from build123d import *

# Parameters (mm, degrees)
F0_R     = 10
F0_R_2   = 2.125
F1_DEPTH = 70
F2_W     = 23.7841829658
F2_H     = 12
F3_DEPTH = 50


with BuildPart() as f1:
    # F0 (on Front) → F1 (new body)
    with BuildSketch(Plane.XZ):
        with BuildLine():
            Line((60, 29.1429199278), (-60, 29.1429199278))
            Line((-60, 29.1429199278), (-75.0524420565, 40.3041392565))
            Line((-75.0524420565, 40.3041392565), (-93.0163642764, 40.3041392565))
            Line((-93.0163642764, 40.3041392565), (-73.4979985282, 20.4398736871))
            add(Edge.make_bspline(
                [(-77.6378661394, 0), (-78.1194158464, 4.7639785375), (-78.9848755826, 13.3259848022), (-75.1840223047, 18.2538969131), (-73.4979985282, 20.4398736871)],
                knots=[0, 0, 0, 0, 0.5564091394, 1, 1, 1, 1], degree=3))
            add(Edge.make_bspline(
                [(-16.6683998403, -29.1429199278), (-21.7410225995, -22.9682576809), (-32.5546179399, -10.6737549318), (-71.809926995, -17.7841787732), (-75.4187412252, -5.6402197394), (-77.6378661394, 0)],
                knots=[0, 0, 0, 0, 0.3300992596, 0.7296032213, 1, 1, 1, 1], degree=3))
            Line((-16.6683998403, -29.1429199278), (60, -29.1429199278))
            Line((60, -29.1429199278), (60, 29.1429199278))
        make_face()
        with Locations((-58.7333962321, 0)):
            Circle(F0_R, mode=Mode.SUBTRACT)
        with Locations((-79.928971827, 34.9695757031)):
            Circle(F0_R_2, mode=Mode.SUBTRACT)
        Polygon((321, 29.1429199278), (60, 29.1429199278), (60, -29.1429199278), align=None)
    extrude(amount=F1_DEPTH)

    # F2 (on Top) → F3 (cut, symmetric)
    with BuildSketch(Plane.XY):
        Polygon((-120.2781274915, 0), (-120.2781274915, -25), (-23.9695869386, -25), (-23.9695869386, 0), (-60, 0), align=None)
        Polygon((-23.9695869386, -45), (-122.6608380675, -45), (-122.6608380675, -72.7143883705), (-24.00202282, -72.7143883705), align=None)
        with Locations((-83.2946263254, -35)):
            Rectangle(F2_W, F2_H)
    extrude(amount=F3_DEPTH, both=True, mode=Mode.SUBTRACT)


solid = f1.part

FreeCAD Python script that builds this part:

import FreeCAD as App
import Part
import Sketcher
Q = App.Units.Quantity


def add_polygon(sketch, points):
    """Adds a closed chain of lines whose ends are joined by coincident constraints."""
    first, n = sketch.GeometryCount, len(points)
    for a, b in zip(points, points[1:] + points[:1]):
        sketch.addGeometry(Part.LineSegment(App.Vector(*a, 0), App.Vector(*b, 0)), False)
    for i in range(n):
        sketch.addConstraint(Sketcher.Constraint("Coincident", first + i, 2, first + (i + 1) % n, 1))

doc = App.newDocument("Part")
body = doc.addObject("PartDesign::Body", "Body")

# Sketch on XZ plane
sketch1 = body.newObject("Sketcher::SketchObject", "Sketch")
sketch1.AttachmentSupport = (doc.getObject("XZ_Plane"), [""])
sketch1.MapMode = "FlatFace"
sketch1.addGeometry(Part.LineSegment(App.Vector(-60, 29.14292, 0), App.Vector(-75.052442, 40.304139, 0)), False)
sketch1.addGeometry(Part.LineSegment(App.Vector(-75.052442, 40.304139, 0), App.Vector(-93.016364, 40.304139, 0)), False)
sketch1.addGeometry(Part.LineSegment(App.Vector(-93.016364, 40.304139, 0), App.Vector(-73.497999, 20.439874, 0)), False)
sketch1.addGeometry(Part.BSplineCurve([App.Vector(-77.637866, 0, 0), App.Vector(-78.119416, 4.763979, 0), App.Vector(-78.984876, 13.325985, 0), App.Vector(-75.184022, 18.253897, 0), App.Vector(-73.497999, 20.439874, 0)], [4, 1, 4], [0, 0.556409139, 1], False, 3, [1, 1, 1, 1, 1], False), False)
sketch1.addGeometry(Part.BSplineCurve([App.Vector(-16.6684, -29.14292, 0), App.Vector(-21.741023, -22.968258, 0), App.Vector(-32.554618, -10.673755, 0), App.Vector(-71.809927, -17.784179, 0), App.Vector(-75.418741, -5.64022, 0), App.Vector(-77.637866, 0, 0)], [4, 1, 1, 4], [0, 0.33009926, 0.729603221, 1], False, 3, [1, 1, 1, 1, 1, 1], False), False)
sketch1.addGeometry(Part.LineSegment(App.Vector(-16.6684, -29.14292, 0), App.Vector(60, -29.14292, 0)), False)
sketch1.addGeometry(Part.LineSegment(App.Vector(60, -29.14292, 0), App.Vector(321, 29.14292, 0)), False)
sketch1.addGeometry(Part.LineSegment(App.Vector(321, 29.14292, 0), App.Vector(-60, 29.14292, 0)), False)
sketch1.addGeometry(Part.Circle(App.Vector(-58.733396, 0, 0), App.Vector(0, 0, 1), 10), False)
sketch1.addGeometry(Part.Circle(App.Vector(-79.928972, 34.969576, 0), App.Vector(0, 0, 1), 2.125), False)
sketch1.addConstraint(Sketcher.Constraint("Block", 3))
sketch1.addConstraint(Sketcher.Constraint("Block", 4))
sketch1.addConstraint(Sketcher.Constraint("Coincident", 0, 2, 1, 1))
sketch1.addConstraint(Sketcher.Constraint("Coincident", 1, 2, 2, 1))
sketch1.addConstraint(Sketcher.Constraint("Coincident", 2, 2, 3, 2))
sketch1.addConstraint(Sketcher.Constraint("Coincident", 4, 1, 5, 1))
sketch1.addConstraint(Sketcher.Constraint("Coincident", 5, 2, 6, 1))
sketch1.addConstraint(Sketcher.Constraint("Coincident", 6, 2, 7, 1))
sketch1.addConstraint(Sketcher.Constraint("Coincident", 7, 2, 0, 1))
sketch1.addConstraint(Sketcher.Constraint("Horizontal", 1))
sketch1.addConstraint(Sketcher.Constraint("Horizontal", 5))
sketch1.addConstraint(Sketcher.Constraint("Horizontal", 7))
sketch1.addConstraint(Sketcher.Constraint("Symmetric", 5, 2, 7, 2, -1, 1))
sketch1.addConstraint(Sketcher.Constraint("PointOnObject", 8, 3, -1))
sketch1.addConstraint(Sketcher.Constraint("Diameter", 8, Q("20 mm")))
sketch1.addConstraint(Sketcher.Constraint("Diameter", 9, Q("4.25 mm")))
sketch1.addConstraint(Sketcher.Constraint("DistanceX", 7, 2, 7, 1, Q("381 mm")))
sketch1.addConstraint(Sketcher.Constraint("DistanceX", -1, 1, 5, 2, Q("60 mm")))
sketch1.addConstraint(Sketcher.Constraint("Distance", 2, Q("27.8488 mm")))
sketch1.addConstraint(Sketcher.Constraint("DistanceX", 1, 2, 1, 1, Q("17.963922 mm")))
sketch1.addConstraint(Sketcher.Constraint("DistanceX", 9, 3, -1, 1, Q("79.928972 mm")))
sketch1.addConstraint(Sketcher.Constraint("DistanceY", -1, 1, 0, 2, Q("40.304139 mm")))
sketch1.addConstraint(Sketcher.Constraint("DistanceX", 1, 2, 8, 3, Q("34.282968 mm")))
sketch1.addConstraint(Sketcher.Constraint("DistanceY", -1, 1, 9, 3, Q("34.969576 mm")))
pad1 = body.newObject("PartDesign::Pad", "Pad")
pad1.Profile = sketch1
pad1.Length = 70

# Sketch on XY plane
sketch2 = body.newObject("Sketcher::SketchObject", "Sketch001")
sketch2.AttachmentSupport = (doc.getObject("XY_Plane"), [""])
sketch2.MapMode = "FlatFace"
add_polygon(sketch2, [(-120.278127, 0), (-120.278127, -25), (-23.969587, -25), (-23.969587, 0)])  # lines 0-3
add_polygon(sketch2, [(-23.969587, -45), (-122.660838, -45), (-122.660838, -72.714388), (-24.002023, -72.714388)])  # lines 4-7
add_polygon(sketch2, [(-95.186718, -29), (-95.186718, -41), (-71.402535, -41), (-71.402535, -29)])  # lines 8-11
sketch2.addConstraint(Sketcher.Constraint("Vertical", 0))
sketch2.addConstraint(Sketcher.Constraint("Horizontal", 1))
sketch2.addConstraint(Sketcher.Constraint("Vertical", 2))
sketch2.addConstraint(Sketcher.Constraint("Horizontal", 3))
sketch2.addConstraint(Sketcher.Constraint("Horizontal", 4))
sketch2.addConstraint(Sketcher.Constraint("Vertical", 5))
sketch2.addConstraint(Sketcher.Constraint("Horizontal", 6))
sketch2.addConstraint(Sketcher.Constraint("Vertical", 8))
sketch2.addConstraint(Sketcher.Constraint("Horizontal", 9))
sketch2.addConstraint(Sketcher.Constraint("Vertical", 10))
sketch2.addConstraint(Sketcher.Constraint("Horizontal", 11))
sketch2.addConstraint(Sketcher.Constraint("PointOnObject", 2, 2, -1))
sketch2.addConstraint(Sketcher.Constraint("Vertical", 2, 2, 7, 2))
sketch2.addConstraint(Sketcher.Constraint("DistanceY", 0, 2, 0, 1, Q("25 mm")))
sketch2.addConstraint(Sketcher.Constraint("DistanceY", 8, 2, 8, 1, Q("12 mm")))
sketch2.addConstraint(Sketcher.Constraint("DistanceY", 4, 2, -1, 1, Q("45 mm")))
sketch2.addConstraint(Sketcher.Constraint("DistanceY", 8, 2, -1, 1, Q("41 mm")))
sketch2.addConstraint(Sketcher.Constraint("DistanceX", 1, 1, 1, 2, Q("96.308541 mm")))
sketch2.addConstraint(Sketcher.Constraint("DistanceX", 4, 2, 4, 1, Q("98.691251 mm")))
sketch2.addConstraint(Sketcher.Constraint("DistanceY", 5, 2, 5, 1, Q("27.714388 mm")))
sketch2.addConstraint(Sketcher.Constraint("DistanceX", 6, 1, 6, 2, Q("98.658815 mm")))
sketch2.addConstraint(Sketcher.Constraint("DistanceX", 9, 1, 9, 2, Q("23.784183 mm")))
sketch2.addConstraint(Sketcher.Constraint("DistanceX", 4, 2, -1, 1, Q("122.660838 mm")))
sketch2.addConstraint(Sketcher.Constraint("DistanceX", 4, 2, 8, 2, Q("27.47412 mm")))
pocket1 = body.newObject("PartDesign::Pocket", "Pocket")
pocket1.Profile = sketch2
pocket1.Length = 100
pocket1.Midplane = True

doc.recompute()
